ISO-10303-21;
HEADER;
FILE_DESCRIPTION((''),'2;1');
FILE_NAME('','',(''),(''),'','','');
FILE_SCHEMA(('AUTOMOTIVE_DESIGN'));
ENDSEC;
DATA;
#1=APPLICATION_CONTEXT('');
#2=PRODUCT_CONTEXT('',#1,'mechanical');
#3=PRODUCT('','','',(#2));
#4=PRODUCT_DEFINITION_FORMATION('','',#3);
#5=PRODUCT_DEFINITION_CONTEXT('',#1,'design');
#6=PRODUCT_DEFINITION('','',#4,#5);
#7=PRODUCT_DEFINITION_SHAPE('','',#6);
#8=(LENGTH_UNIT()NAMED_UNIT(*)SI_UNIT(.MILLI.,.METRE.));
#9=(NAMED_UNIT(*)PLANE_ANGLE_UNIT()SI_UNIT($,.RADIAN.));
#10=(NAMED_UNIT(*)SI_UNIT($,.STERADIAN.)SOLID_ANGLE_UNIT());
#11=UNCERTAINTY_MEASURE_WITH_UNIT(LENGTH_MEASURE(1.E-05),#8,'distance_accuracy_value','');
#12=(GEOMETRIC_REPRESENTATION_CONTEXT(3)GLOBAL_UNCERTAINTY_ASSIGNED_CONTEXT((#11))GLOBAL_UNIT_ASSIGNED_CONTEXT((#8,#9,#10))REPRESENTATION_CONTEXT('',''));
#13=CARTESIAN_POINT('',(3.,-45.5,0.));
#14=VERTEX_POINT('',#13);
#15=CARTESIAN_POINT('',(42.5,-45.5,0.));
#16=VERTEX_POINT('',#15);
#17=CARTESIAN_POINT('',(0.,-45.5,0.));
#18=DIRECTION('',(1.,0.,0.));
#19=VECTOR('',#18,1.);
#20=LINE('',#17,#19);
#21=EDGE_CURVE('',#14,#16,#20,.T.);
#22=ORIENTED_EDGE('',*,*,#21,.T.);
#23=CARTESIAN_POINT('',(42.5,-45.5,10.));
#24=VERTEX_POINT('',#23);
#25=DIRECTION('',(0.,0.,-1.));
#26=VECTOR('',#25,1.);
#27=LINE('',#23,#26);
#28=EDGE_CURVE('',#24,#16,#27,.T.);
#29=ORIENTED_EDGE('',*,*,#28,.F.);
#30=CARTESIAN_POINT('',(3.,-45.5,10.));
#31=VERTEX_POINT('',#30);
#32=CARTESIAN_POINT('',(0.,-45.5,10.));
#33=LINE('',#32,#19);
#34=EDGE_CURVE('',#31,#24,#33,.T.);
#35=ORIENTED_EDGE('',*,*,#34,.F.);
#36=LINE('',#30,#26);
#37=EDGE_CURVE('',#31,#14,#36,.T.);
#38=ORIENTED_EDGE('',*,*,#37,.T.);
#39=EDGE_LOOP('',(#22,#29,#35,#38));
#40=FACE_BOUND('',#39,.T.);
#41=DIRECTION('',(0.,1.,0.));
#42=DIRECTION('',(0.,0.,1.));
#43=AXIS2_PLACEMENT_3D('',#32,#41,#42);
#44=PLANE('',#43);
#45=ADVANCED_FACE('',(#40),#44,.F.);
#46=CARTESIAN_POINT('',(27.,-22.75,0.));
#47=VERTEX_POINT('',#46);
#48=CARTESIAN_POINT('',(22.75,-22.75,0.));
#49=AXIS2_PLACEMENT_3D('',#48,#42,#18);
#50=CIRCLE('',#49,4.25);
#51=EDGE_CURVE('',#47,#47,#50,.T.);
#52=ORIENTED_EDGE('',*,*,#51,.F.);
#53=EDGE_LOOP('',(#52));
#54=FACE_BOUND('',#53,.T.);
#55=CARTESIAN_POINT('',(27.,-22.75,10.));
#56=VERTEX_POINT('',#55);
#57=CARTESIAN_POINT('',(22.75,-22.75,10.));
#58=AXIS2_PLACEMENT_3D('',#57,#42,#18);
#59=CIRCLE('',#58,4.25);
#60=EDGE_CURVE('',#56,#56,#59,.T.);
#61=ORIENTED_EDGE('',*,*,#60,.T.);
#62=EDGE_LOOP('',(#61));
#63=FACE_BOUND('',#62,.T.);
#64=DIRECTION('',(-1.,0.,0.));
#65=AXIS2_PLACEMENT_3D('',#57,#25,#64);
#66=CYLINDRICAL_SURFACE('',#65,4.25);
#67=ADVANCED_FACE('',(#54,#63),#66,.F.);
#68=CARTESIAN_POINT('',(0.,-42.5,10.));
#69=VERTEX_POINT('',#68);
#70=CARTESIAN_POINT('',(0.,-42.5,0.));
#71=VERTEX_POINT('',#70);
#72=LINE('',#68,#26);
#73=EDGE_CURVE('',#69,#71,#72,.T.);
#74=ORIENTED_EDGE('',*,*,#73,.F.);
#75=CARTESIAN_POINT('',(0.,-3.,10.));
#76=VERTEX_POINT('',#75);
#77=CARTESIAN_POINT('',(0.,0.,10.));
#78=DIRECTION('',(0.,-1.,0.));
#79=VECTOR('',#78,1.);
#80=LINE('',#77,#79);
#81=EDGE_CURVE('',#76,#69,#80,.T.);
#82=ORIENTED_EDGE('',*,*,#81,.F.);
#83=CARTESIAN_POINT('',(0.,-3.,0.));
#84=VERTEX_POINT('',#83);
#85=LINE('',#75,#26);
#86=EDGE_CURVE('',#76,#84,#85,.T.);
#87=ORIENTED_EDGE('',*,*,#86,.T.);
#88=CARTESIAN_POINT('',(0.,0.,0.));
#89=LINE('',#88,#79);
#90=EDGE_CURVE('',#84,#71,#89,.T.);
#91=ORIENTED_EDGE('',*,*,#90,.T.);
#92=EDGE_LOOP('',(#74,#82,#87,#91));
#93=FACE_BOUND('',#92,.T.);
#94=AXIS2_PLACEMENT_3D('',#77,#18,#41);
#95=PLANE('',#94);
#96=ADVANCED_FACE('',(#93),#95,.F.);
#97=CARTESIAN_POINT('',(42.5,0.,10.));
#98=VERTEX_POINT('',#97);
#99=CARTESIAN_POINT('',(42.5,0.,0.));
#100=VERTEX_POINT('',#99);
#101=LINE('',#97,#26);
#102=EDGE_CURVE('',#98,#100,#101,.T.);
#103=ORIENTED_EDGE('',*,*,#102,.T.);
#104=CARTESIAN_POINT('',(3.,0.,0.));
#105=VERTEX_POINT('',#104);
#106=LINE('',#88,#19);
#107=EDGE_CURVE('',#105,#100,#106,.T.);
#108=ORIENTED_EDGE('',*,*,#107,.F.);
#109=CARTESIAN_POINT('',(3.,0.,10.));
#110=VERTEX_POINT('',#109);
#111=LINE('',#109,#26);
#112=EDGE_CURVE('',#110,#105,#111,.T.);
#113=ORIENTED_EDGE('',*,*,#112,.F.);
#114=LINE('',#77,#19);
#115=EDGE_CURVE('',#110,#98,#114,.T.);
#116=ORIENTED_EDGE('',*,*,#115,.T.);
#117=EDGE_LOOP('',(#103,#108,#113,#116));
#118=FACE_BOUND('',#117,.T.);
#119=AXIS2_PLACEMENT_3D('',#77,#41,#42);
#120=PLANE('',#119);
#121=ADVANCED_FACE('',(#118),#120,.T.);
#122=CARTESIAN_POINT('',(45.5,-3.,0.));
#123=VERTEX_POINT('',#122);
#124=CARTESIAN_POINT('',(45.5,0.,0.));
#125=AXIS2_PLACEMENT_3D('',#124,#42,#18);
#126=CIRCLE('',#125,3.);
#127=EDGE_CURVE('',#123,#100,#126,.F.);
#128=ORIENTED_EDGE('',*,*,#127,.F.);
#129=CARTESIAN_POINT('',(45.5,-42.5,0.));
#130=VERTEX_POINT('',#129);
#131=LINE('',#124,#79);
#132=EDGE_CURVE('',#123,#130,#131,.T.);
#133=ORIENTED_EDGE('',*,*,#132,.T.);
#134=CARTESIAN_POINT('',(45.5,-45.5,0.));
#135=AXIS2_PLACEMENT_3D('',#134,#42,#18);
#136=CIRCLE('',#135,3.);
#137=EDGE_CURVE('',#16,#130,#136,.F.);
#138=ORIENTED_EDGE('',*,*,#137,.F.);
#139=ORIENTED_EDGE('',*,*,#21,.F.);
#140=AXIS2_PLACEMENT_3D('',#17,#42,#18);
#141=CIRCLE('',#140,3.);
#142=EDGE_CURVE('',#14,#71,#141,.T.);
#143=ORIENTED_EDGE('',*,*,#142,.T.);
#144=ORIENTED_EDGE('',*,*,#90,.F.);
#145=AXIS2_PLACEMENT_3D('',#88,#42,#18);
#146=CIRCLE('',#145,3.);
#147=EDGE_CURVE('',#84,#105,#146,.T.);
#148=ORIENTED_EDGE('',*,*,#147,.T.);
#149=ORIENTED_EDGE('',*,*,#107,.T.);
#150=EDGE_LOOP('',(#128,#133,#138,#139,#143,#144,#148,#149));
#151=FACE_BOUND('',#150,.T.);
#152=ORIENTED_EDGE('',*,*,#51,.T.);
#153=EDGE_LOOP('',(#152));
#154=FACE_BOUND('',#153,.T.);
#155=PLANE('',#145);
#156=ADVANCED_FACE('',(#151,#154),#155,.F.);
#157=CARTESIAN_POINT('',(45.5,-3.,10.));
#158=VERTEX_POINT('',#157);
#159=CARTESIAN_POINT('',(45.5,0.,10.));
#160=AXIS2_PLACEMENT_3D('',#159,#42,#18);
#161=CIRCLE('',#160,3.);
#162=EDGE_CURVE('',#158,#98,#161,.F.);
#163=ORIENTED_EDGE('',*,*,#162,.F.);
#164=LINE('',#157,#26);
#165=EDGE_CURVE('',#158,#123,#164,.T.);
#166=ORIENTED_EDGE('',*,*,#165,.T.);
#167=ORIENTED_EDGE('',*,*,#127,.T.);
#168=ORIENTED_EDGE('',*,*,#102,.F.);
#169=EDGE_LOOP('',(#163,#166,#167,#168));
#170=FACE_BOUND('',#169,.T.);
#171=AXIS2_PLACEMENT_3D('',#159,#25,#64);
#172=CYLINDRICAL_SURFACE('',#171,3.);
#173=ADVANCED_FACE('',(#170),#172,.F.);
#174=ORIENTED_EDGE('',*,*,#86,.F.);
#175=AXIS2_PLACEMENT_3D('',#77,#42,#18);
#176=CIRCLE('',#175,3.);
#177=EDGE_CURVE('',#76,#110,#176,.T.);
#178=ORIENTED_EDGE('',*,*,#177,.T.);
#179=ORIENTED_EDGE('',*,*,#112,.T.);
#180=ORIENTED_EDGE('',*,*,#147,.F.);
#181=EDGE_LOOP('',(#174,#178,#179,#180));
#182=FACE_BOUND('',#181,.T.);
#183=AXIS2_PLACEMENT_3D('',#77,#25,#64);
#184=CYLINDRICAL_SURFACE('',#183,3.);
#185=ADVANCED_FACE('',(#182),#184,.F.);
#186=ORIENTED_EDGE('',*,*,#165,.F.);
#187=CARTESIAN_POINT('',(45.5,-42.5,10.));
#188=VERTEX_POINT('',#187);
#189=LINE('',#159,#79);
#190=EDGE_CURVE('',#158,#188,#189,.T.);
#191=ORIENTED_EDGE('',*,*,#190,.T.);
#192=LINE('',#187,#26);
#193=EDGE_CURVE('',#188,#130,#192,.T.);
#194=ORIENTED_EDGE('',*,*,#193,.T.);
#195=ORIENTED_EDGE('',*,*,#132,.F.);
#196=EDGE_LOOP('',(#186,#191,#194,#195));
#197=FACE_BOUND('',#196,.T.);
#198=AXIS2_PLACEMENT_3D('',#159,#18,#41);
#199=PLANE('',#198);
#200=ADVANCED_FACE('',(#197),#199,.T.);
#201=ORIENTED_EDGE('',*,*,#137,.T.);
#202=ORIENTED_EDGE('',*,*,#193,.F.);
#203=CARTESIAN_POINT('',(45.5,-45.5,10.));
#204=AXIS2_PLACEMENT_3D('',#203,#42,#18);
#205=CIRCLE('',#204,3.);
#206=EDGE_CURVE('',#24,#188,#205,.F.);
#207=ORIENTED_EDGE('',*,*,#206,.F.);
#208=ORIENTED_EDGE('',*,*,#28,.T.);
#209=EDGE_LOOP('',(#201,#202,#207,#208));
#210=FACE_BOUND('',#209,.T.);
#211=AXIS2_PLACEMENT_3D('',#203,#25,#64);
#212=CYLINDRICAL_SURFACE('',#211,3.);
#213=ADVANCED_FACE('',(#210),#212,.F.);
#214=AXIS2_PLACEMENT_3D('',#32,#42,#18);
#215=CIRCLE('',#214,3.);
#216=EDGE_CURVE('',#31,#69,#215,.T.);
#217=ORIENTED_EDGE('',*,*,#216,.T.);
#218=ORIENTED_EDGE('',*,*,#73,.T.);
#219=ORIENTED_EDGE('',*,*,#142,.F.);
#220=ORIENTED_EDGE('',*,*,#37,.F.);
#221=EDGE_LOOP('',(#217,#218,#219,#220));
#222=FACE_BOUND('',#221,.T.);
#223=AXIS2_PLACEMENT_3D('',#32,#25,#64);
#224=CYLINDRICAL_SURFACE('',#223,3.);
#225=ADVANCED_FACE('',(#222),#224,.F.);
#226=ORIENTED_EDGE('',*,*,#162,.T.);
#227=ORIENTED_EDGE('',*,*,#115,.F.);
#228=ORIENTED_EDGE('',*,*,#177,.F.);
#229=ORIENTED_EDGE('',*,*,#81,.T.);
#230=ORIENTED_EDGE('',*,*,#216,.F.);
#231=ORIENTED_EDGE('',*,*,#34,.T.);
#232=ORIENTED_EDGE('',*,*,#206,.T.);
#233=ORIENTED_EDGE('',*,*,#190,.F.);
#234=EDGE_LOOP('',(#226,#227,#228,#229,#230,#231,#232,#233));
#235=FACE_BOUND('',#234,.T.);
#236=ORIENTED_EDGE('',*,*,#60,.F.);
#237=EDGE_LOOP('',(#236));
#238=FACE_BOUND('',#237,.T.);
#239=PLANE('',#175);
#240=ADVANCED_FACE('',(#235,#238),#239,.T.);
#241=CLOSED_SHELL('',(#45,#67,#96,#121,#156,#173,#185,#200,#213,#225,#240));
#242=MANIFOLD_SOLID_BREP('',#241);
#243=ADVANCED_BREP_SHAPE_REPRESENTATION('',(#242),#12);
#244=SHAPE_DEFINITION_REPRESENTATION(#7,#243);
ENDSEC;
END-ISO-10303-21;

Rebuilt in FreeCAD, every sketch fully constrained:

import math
import FreeCAD as App
import Part
import Sketcher
from FreeCAD import Vector

doc = App.newDocument("Part")
body = doc.addObject("PartDesign::Body", "Body")

sketch1 = body.newObject("Sketcher::SketchObject", "Sketch")
sketch1.AttachmentSupport = (doc.getObject("XY_Plane"), [""])
sketch1.MapMode = "FlatFace"
sketch1.addGeometry(Part.LineSegment(Vector(42.5, 0, 0), Vector(3, 0, 0)), False)
sketch1.addGeometry(Part.ArcOfCircle(Part.Circle(Vector(0, 0, 0), Vector(0, 0, 1), 3), math.radians(-90), math.radians(0)), False)
sketch1.addGeometry(Part.LineSegment(Vector(0, -3, 0), Vector(0, -42.5, 0)), False)
sketch1.addGeometry(Part.ArcOfCircle(Part.Circle(Vector(0, -45.5, 0), Vector(0, 0, 1), 3), math.radians(0), math.radians(90)), False)
sketch1.addGeometry(Part.LineSegment(Vector(3, -45.5, 0), Vector(42.5, -45.5, 0)), False)
sketch1.addGeometry(Part.ArcOfCircle(Part.Circle(Vector(45.5, -45.5, 0), Vector(0, 0, 1), 3), math.radians(90), math.radians(180)), False)
sketch1.addGeometry(Part.LineSegment(Vector(45.5, -42.5, 0), Vector(45.5, -3, 0)), False)
sketch1.addGeometry(Part.ArcOfCircle(Part.Circle(Vector(45.5, 0, 0), Vector(0, 0, 1), 3), math.radians(180), math.radians(270)), False)
sketch1.addGeometry(Part.Circle(Vector(22.8, -22.8, 0), Vector(0, 0, 1), 4.2), False)
sketch1.addConstraint(Sketcher.Constraint("Coincident", 0, 2, 1, 2))
sketch1.addConstraint(Sketcher.Constraint("Coincident", 1, 1, 2, 1))
sketch1.addConstraint(Sketcher.Constraint("Coincident", 2, 2, 3, 2))
sketch1.addConstraint(Sketcher.Constraint("Coincident", 3, 1, 4, 1))
sketch1.addConstraint(Sketcher.Constraint("Coincident", 4, 2, 5, 2))
sketch1.addConstraint(Sketcher.Constraint("Coincident", 5, 1, 6, 1))
sketch1.addConstraint(Sketcher.Constraint("Coincident", 6, 2, 7, 2))
sketch1.addConstraint(Sketcher.Constraint("Coincident", 7, 1, 0, 1))
sketch1.addConstraint(Sketcher.Constraint("Horizontal", 0))
sketch1.addConstraint(Sketcher.Constraint("Vertical", 2))
sketch1.addConstraint(Sketcher.Constraint("Horizontal", 4))
sketch1.addConstraint(Sketcher.Constraint("Vertical", 6))
sketch1.addConstraint(Sketcher.Constraint("Coincident", 1, 3, -1, 1))
sketch1.addConstraint(Sketcher.Constraint("Equal", 1, 3))
sketch1.addConstraint(Sketcher.Constraint("Equal", 3, 5))
sketch1.addConstraint(Sketcher.Constraint("Equal", 5, 7))
sketch1.addConstraint(Sketcher.Constraint("PointOnObject", 3, 3, -2))
sketch1.addConstraint(Sketcher.Constraint("PointOnObject", 7, 3, -1))
sketch1.addConstraint(Sketcher.Constraint("PointOnObject", 0, 2, -1))
sketch1.addConstraint(Sketcher.Constraint("PointOnObject", 1, 1, -2))
sketch1.addConstraint(Sketcher.Constraint("Horizontal", 3, 3, 5, 3))
sketch1.addConstraint(Sketcher.Constraint("Horizontal", 5, 3, 3, 1))
sketch1.addConstraint(Sketcher.Constraint("Vertical", 5, 3, 7, 3))
sketch1.addConstraint(Sketcher.Constraint("Vertical", 7, 3, 5, 1))
sketch1.addConstraint(Sketcher.Constraint("Equal", 4, 2))
sketch1.addConstraint(Sketcher.Constraint("Radius", 1, 3.0))
sketch1.addConstraint(Sketcher.Constraint("Diameter", 8, 8.5))
sketch1.addConstraint(Sketcher.Constraint("DistanceX", 0, 2, 0, 1, 39.5))
sketch1.addConstraint(Sketcher.Constraint("DistanceX", -1, 1, 8, 3, 22.75))
sketch1.addConstraint(Sketcher.Constraint("DistanceY", 8, 3, -1, 1, 22.75))
pad1 = body.newObject("PartDesign::Pad", "Pad")
pad1.Profile = sketch1
pad1.Length = 10

doc.recompute()
